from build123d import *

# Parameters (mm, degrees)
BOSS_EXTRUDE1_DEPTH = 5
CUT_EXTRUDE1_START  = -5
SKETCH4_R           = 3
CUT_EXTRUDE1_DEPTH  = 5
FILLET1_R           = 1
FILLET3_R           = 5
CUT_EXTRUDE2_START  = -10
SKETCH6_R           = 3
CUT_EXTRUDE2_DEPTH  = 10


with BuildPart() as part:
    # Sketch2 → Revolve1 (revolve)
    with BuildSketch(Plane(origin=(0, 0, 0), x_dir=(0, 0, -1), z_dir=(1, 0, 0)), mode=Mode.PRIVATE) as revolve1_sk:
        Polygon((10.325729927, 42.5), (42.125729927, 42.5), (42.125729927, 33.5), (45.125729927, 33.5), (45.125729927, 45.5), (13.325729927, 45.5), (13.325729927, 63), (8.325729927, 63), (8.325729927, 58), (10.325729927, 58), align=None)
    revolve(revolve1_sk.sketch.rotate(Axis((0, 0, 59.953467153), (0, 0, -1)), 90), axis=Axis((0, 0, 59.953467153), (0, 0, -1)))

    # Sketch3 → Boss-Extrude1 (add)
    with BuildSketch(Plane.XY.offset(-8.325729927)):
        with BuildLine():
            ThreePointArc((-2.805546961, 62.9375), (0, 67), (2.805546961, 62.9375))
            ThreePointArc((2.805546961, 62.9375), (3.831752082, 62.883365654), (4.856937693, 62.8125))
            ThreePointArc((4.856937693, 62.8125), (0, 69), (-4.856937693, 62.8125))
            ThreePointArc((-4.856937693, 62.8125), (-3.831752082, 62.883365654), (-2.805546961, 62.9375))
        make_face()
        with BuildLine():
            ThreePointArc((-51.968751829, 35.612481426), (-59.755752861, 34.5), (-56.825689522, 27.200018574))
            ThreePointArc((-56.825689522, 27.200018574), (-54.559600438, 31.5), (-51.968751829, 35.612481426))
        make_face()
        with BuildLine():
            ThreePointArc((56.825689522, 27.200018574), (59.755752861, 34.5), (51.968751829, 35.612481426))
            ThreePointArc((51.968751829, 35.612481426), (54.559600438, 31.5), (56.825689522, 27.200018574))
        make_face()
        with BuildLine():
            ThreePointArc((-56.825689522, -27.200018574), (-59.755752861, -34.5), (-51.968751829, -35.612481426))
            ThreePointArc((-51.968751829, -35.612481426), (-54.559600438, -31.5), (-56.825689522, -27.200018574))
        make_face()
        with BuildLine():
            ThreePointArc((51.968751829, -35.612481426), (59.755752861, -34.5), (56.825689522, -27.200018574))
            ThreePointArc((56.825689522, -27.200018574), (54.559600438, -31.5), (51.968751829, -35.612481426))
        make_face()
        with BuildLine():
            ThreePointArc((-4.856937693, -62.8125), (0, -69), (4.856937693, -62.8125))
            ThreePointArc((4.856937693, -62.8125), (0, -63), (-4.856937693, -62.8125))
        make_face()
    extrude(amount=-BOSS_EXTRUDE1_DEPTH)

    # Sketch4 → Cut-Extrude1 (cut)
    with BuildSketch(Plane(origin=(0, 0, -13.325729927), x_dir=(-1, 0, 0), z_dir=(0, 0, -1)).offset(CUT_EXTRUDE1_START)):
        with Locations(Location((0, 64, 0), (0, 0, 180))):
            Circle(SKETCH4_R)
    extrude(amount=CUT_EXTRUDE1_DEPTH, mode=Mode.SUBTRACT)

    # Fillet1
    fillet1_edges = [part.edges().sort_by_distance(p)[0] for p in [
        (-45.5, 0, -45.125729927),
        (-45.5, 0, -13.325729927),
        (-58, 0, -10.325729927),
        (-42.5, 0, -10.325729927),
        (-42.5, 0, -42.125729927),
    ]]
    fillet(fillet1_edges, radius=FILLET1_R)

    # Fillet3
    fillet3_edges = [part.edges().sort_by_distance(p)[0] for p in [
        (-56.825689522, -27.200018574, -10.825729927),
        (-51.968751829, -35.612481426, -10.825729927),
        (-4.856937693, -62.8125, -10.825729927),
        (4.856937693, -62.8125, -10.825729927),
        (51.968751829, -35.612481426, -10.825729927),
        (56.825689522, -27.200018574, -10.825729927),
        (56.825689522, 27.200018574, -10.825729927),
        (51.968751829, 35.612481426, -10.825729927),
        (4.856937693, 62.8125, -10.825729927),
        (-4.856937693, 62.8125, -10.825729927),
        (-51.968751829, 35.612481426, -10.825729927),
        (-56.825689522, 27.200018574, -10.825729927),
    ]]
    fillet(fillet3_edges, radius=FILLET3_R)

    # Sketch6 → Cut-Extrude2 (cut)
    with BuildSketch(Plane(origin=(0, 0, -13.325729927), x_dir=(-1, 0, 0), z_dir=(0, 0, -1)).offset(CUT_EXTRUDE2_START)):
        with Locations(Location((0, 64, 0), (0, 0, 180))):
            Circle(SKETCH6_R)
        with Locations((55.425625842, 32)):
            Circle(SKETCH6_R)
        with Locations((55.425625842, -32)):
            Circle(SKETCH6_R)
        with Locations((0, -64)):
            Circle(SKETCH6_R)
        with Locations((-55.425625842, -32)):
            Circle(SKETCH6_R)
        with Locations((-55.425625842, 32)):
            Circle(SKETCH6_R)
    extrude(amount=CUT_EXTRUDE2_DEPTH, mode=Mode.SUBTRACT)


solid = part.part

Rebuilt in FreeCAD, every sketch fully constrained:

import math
import FreeCAD as App
import Part
import Sketcher

V = App.Vector
Q = App.Units.Quantity


def edges_at(feature, points):
    """Names of the edges that pass closest to the given points."""
    edges = feature.Shape.Edges
    near = lambda p: min(range(len(edges)), key=lambda i: edges[i].distToShape(Part.Vertex(*p))[0])
    return sorted({f"Edge{near(p) + 1}" for p in points})


def add_polygon(sketch, points):
    """Adds a closed chain of lines whose ends are joined by coincident constraints."""
    first, n = sketch.GeometryCount, len(points)
    for a, b in zip(points, points[1:] + points[:1]):
        sketch.addGeometry(Part.LineSegment(App.Vector(*a, 0), App.Vector(*b, 0)), False)
    for i in range(n):
        sketch.addConstraint(Sketcher.Constraint("Coincident", first + i, 2, first + (i + 1) % n, 1))

doc = App.newDocument("Part")
body = doc.addObject("PartDesign::Body", "Body")

# Sketch on YZ plane
sketch1 = doc.addObject("Sketcher::SketchObject", "Sketch")
body.addObject(sketch1)
sketch1.AttachmentSupport = (doc.YZ_Plane, [""])
sketch1.MapMode = "FlatFace"
add_polygon(sketch1, [(42.5, -10.3), (42.5, -42.1), (33.5, -42.1), (33.5, -45.1), (45.5, -45.1), (45.5, -13.3), (63, -13.3), (63, -8.3), (58, -8.3), (58, -10.3)])  # lines 0-9
sketch1.addConstraint([
    Sketcher.Constraint("Vertical", 0),
    Sketcher.Constraint("Horizontal", 1),
    Sketcher.Constraint("Vertical", 2),
    Sketcher.Constraint("Horizontal", 3),
    Sketcher.Constraint("Vertical", 4),
    Sketcher.Constraint("Horizontal", 5),
    Sketcher.Constraint("Vertical", 6),
    Sketcher.Constraint("Horizontal", 7),
    Sketcher.Constraint("Vertical", 8),
    Sketcher.Constraint("Horizontal", 9),
    Sketcher.Constraint("Equal", 0, 4),
    Sketcher.Constraint("Equal", 7, 6),
    Sketcher.Constraint("DistanceX", 1, 2, 1, 1, Q("9 mm")),
    Sketcher.Constraint("DistanceX", 3, 1, 3, 2, Q("12 mm")),
    Sketcher.Constraint("DistanceX", 7, 2, 7, 1, Q("5 mm")),
    Sketcher.Constraint("DistanceY", 2, 2, 2, 1, Q("3 mm")),
    Sketcher.Constraint("DistanceX", 5, 1, 5, 2, Q("17.5 mm")),
    Sketcher.Constraint("DistanceY", 0, 2, 0, 1, Q("31.8 mm")),
    Sketcher.Constraint("DistanceX", -1, 1, 5, 2, Q("63 mm")),
    Sketcher.Constraint("DistanceY", 0, 2, -1, 1, Q("42.12573 mm")),
])
revolution = doc.addObject("PartDesign::Revolution", "Revolution")
body.addObject(revolution)
revolution.Profile = sketch1
revolution.ReferenceAxis = (sketch1, ["V_Axis"])
revolution.Angle = 360

# Sketch on XY plane
sketch2 = doc.addObject("Sketcher::SketchObject", "Sketch001")
body.addObject(sketch2)
sketch2.AttachmentSupport = (doc.XY_Plane, [""])
sketch2.MapMode = "FlatFace"
sketch2.AttachmentOffset = App.Placement(V(0, 0, -8.32573), App.Rotation())
sketch2.addGeometry([
    Part.ArcOfCircle(Part.Circle(V(0, 64, 0), V(0, 0, 1), 3), math.radians(-21), math.radians(201)),  # 0
    Part.ArcOfCircle(Part.Circle(V(0, 0, 0), V(0, 0, 1), 63), math.radians(85.58), math.radians(87.45)),  # 1
    Part.ArcOfCircle(Part.Circle(V(0, 64, 0), V(0, 0, 1), 5), math.radians(-14), math.radians(194)),  # 2
    Part.ArcOfCircle(Part.Circle(V(0, 0, 0), V(0, 0, 1), 63), math.radians(92.55), math.radians(94.42)),  # 3
    Part.ArcOfCircle(Part.Circle(V(-55.4, 32, 0), V(0, 0, 1), 5), math.radians(46), math.radians(254)),  # 4
    Part.ArcOfCircle(Part.Circle(V(0, 0, 0), V(0, 0, 1), 63), math.radians(145.58), math.radians(154.42)),  # 5
    Part.ArcOfCircle(Part.Circle(V(55.4, 32, 0), V(0, 0, 1), 5), math.radians(-74), math.radians(134)),  # 6
    Part.ArcOfCircle(Part.Circle(V(0, 0, 0), V(0, 0, 1), 63), math.radians(25.58), math.radians(34.42)),  # 7
    Part.ArcOfCircle(Part.Circle(V(-55.4, -32, 0), V(0, 0, 1), 5), math.radians(106), math.radians(314)),  # 8
    Part.ArcOfCircle(Part.Circle(V(0, 0, 0), V(0, 0, 1), 63), math.radians(-154.42), math.radians(-145.58)),  # 9
    Part.ArcOfCircle(Part.Circle(V(55.4, -32, 0), V(0, 0, 1), 5), math.radians(-134), math.radians(74)),  # 10
    Part.ArcOfCircle(Part.Circle(V(0, 0, 0), V(0, 0, 1), 63), math.radians(-34.42), math.radians(-25.58)),  # 11
    Part.ArcOfCircle(Part.Circle(V(0, -64, 0), V(0, 0, 1), 5), math.radians(166), math.radians(374)),  # 12
    Part.ArcOfCircle(Part.Circle(V(0, 0, 0), V(0, 0, 1), 63), math.radians(-94.42), math.radians(-85.58)),  # 13
], False)
sketch2.addConstraint([
    Sketcher.Constraint("Coincident", 0, 1, 1, 2),
    Sketcher.Constraint("Coincident", 1, 1, 2, 1),
    Sketcher.Constraint("Coincident", 2, 2, 3, 2),
    Sketcher.Constraint("Coincident", 3, 1, 0, 2),
    Sketcher.Constraint("Coincident", 4, 1, 5, 1),
    Sketcher.Constraint("Coincident", 5, 2, 4, 2),
    Sketcher.Constraint("Coincident", 6, 1, 7, 1),
    Sketcher.Constraint("Coincident", 7, 2, 6, 2),
    Sketcher.Constraint("Coincident", 8, 1, 9, 1),
    Sketcher.Constraint("Coincident", 9, 2, 8, 2),
    Sketcher.Constraint("Coincident", 10, 1, 11, 1),
    Sketcher.Constraint("Coincident", 11, 2, 10, 2),
    Sketcher.Constraint("Coincident", 12, 1, 13, 1),
    Sketcher.Constraint("Coincident", 13, 2, 12, 2),
    Sketcher.Constraint("Coincident", 1, 3, -1, 1),
    Sketcher.Constraint("Coincident", 3, 3, -1, 1),
    Sketcher.Constraint("Coincident", 5, 3, -1, 1),
    Sketcher.Constraint("Coincident", 7, 3, -1, 1),
    Sketcher.Constraint("Coincident", 9, 3, -1, 1),
    Sketcher.Constraint("Coincident", 11, 3, -1, 1),
    Sketcher.Constraint("Coincident", 13, 3, -1, 1),
    Sketcher.Constraint("Coincident", 2, 3, 0, 3),
    Sketcher.Constraint("Equal", 1, 3),
    Sketcher.Constraint("Equal", 2, 4),
    Sketcher.Constraint("Equal", 3, 5),
    Sketcher.Constraint("Equal", 4, 6),
    Sketcher.Constraint("Equal", 5, 7),
    Sketcher.Constraint("Equal", 6, 8),
    Sketcher.Constraint("Equal", 7, 9),
    Sketcher.Constraint("Equal", 8, 10),
    Sketcher.Constraint("Equal", 9, 11),
    Sketcher.Constraint("Equal", 10, 12),
    Sketcher.Constraint("Equal", 11, 13),
    Sketcher.Constraint("Symmetric", 6, 3, 8, 3, -1, 1),
    Sketcher.Constraint("Symmetric", 4, 3, 10, 3, -1, 1),
    Sketcher.Constraint("Symmetric", 0, 3, 12, 3, -1, 1),
    Sketcher.Constraint("Symmetric", 4, 3, 6, 3, -2),
    Sketcher.Constraint("PointOnObject", 0, 3, -2),
    Sketcher.Constraint("Radius", 0, Q("3 mm")),
    Sketcher.Constraint("Radius", 1, Q("63.000001 mm")),
    Sketcher.Constraint("Radius", 2, Q("5 mm")),
    Sketcher.Constraint("DistanceY", -1, 1, 0, 3, Q("64 mm")),
    Sketcher.Constraint("DistanceY", -1, 1, 4, 3, Q("32 mm")),
    Sketcher.Constraint("DistanceX", 4, 1, -1, 1, Q("51.968752 mm")),
])
pad1 = doc.addObject("PartDesign::Pad", "Pad")
body.addObject(pad1)
pad1.Profile = sketch2
pad1.Length = 5
pad1.Reversed = True

# Sketch on XY plane
sketch3 = doc.addObject("Sketcher::SketchObject", "Sketch002")
body.addObject(sketch3)
sketch3.AttachmentSupport = (doc.XY_Plane, [""])
sketch3.MapMode = "FlatFace"
sketch3.AttachmentOffset = App.Placement(V(0, 0, -8.32573), App.Rotation())
sketch3.addGeometry(Part.Circle(V(0, 64, 0), V(0, 0, 1), 3), False)
sketch3.addConstraint([
    Sketcher.Constraint("PointOnObject", 0, 3, -2),
    Sketcher.Constraint("Diameter", 0, Q("6 mm")),
    Sketcher.Constraint("DistanceY", -1, 1, 0, 3, Q("64 mm")),
])
pocket1 = doc.addObject("PartDesign::Pocket", "Pocket")
body.addObject(pocket1)
pocket1.Profile = sketch3
pocket1.Length = 5
doc.recompute()

fillet = doc.addObject("PartDesign::Fillet", "Fillet")
body.addObject(fillet)
fillet.Base = (pocket1, edges_at(pocket1, [
    (-45.5, 0, -45.126),
    (-45.5, 0, -13.326),
    (-58, 0, -10.326),
    (-42.5, 0, -10.326),
    (-42.5, 0, -42.126),
]))
fillet.Radius = 1
doc.recompute()

fillet2 = doc.addObject("PartDesign::Fillet", "Fillet001")
body.addObject(fillet2)
fillet2.Base = (fillet, edges_at(fillet, [
    (-56.826, -27.2, -10.826),
    (-51.969, -35.612, -10.826),
    (-4.857, -62.812, -10.826),
    (4.857, -62.812, -10.826),
    (51.969, -35.612, -10.826),
    (56.826, -27.2, -10.826),
    (56.826, 27.2, -10.826),
    (51.969, 35.612, -10.826),
    (4.857, 62.812, -10.826),
    (-4.857, 62.812, -10.826),
    (-51.969, 35.612, -10.826),
    (-56.826, 27.2, -10.826),
]))
fillet2.Radius = 5

# Sketch on XY plane
sketch4 = doc.addObject("Sketcher::SketchObject", "Sketch003")
body.addObject(sketch4)
sketch4.AttachmentSupport = (doc.XY_Plane, [""])
sketch4.MapMode = "FlatFace"
sketch4.AttachmentOffset = App.Placement(V(0, 0, -3.32573), App.Rotation())
sketch4.addGeometry([
    Part.Circle(V(0, 64, 0), V(0, 0, 1), 3),  # 0
    Part.Circle(V(-55.4, 32, 0), V(0, 0, 1), 3),  # 1
    Part.Circle(V(-55.4, -32, 0), V(0, 0, 1), 3),  # 2
    Part.Circle(V(0, -64, 0), V(0, 0, 1), 3),  # 3
    Part.Circle(V(55.4, -32, 0), V(0, 0, 1), 3),  # 4
    Part.Circle(V(55.4, 32, 0), V(0, 0, 1), 3),  # 5
], False)
sketch4.addConstraint([
    Sketcher.Constraint("Equal", 0, 1),
    Sketcher.Constraint("Equal", 1, 2),
    Sketcher.Constraint("Equal", 2, 3),
    Sketcher.Constraint("Equal", 3, 4),
    Sketcher.Constraint("Equal", 4, 5),
    Sketcher.Constraint("Symmetric", 0, 3, 3, 3, -1, 1),
    Sketcher.Constraint("Symmetric", 1, 3, 4, 3, -1, 1),
    Sketcher.Constraint("Symmetric", 2, 3, 5, 3, -1, 1),
    Sketcher.Constraint("Symmetric", 2, 3, 4, 3, -2),
    Sketcher.Constraint("PointOnObject", 0, 3, -2),
    Sketcher.Constraint("Diameter", 0, Q("6 mm")),
    Sketcher.Constraint("DistanceY", -1, 1, 0, 3, Q("64 mm")),
    Sketcher.Constraint("DistanceY", -1, 1, 1, 3, Q("32 mm")),
    Sketcher.Constraint("DistanceX", 2, 3, 4, 3, Q("110.851252 mm")),
])
pocket2 = doc.addObject("PartDesign::Pocket", "Pocket001")
body.addObject(pocket2)
pocket2.Profile = sketch4
pocket2.Length = 10

doc.recompute()
